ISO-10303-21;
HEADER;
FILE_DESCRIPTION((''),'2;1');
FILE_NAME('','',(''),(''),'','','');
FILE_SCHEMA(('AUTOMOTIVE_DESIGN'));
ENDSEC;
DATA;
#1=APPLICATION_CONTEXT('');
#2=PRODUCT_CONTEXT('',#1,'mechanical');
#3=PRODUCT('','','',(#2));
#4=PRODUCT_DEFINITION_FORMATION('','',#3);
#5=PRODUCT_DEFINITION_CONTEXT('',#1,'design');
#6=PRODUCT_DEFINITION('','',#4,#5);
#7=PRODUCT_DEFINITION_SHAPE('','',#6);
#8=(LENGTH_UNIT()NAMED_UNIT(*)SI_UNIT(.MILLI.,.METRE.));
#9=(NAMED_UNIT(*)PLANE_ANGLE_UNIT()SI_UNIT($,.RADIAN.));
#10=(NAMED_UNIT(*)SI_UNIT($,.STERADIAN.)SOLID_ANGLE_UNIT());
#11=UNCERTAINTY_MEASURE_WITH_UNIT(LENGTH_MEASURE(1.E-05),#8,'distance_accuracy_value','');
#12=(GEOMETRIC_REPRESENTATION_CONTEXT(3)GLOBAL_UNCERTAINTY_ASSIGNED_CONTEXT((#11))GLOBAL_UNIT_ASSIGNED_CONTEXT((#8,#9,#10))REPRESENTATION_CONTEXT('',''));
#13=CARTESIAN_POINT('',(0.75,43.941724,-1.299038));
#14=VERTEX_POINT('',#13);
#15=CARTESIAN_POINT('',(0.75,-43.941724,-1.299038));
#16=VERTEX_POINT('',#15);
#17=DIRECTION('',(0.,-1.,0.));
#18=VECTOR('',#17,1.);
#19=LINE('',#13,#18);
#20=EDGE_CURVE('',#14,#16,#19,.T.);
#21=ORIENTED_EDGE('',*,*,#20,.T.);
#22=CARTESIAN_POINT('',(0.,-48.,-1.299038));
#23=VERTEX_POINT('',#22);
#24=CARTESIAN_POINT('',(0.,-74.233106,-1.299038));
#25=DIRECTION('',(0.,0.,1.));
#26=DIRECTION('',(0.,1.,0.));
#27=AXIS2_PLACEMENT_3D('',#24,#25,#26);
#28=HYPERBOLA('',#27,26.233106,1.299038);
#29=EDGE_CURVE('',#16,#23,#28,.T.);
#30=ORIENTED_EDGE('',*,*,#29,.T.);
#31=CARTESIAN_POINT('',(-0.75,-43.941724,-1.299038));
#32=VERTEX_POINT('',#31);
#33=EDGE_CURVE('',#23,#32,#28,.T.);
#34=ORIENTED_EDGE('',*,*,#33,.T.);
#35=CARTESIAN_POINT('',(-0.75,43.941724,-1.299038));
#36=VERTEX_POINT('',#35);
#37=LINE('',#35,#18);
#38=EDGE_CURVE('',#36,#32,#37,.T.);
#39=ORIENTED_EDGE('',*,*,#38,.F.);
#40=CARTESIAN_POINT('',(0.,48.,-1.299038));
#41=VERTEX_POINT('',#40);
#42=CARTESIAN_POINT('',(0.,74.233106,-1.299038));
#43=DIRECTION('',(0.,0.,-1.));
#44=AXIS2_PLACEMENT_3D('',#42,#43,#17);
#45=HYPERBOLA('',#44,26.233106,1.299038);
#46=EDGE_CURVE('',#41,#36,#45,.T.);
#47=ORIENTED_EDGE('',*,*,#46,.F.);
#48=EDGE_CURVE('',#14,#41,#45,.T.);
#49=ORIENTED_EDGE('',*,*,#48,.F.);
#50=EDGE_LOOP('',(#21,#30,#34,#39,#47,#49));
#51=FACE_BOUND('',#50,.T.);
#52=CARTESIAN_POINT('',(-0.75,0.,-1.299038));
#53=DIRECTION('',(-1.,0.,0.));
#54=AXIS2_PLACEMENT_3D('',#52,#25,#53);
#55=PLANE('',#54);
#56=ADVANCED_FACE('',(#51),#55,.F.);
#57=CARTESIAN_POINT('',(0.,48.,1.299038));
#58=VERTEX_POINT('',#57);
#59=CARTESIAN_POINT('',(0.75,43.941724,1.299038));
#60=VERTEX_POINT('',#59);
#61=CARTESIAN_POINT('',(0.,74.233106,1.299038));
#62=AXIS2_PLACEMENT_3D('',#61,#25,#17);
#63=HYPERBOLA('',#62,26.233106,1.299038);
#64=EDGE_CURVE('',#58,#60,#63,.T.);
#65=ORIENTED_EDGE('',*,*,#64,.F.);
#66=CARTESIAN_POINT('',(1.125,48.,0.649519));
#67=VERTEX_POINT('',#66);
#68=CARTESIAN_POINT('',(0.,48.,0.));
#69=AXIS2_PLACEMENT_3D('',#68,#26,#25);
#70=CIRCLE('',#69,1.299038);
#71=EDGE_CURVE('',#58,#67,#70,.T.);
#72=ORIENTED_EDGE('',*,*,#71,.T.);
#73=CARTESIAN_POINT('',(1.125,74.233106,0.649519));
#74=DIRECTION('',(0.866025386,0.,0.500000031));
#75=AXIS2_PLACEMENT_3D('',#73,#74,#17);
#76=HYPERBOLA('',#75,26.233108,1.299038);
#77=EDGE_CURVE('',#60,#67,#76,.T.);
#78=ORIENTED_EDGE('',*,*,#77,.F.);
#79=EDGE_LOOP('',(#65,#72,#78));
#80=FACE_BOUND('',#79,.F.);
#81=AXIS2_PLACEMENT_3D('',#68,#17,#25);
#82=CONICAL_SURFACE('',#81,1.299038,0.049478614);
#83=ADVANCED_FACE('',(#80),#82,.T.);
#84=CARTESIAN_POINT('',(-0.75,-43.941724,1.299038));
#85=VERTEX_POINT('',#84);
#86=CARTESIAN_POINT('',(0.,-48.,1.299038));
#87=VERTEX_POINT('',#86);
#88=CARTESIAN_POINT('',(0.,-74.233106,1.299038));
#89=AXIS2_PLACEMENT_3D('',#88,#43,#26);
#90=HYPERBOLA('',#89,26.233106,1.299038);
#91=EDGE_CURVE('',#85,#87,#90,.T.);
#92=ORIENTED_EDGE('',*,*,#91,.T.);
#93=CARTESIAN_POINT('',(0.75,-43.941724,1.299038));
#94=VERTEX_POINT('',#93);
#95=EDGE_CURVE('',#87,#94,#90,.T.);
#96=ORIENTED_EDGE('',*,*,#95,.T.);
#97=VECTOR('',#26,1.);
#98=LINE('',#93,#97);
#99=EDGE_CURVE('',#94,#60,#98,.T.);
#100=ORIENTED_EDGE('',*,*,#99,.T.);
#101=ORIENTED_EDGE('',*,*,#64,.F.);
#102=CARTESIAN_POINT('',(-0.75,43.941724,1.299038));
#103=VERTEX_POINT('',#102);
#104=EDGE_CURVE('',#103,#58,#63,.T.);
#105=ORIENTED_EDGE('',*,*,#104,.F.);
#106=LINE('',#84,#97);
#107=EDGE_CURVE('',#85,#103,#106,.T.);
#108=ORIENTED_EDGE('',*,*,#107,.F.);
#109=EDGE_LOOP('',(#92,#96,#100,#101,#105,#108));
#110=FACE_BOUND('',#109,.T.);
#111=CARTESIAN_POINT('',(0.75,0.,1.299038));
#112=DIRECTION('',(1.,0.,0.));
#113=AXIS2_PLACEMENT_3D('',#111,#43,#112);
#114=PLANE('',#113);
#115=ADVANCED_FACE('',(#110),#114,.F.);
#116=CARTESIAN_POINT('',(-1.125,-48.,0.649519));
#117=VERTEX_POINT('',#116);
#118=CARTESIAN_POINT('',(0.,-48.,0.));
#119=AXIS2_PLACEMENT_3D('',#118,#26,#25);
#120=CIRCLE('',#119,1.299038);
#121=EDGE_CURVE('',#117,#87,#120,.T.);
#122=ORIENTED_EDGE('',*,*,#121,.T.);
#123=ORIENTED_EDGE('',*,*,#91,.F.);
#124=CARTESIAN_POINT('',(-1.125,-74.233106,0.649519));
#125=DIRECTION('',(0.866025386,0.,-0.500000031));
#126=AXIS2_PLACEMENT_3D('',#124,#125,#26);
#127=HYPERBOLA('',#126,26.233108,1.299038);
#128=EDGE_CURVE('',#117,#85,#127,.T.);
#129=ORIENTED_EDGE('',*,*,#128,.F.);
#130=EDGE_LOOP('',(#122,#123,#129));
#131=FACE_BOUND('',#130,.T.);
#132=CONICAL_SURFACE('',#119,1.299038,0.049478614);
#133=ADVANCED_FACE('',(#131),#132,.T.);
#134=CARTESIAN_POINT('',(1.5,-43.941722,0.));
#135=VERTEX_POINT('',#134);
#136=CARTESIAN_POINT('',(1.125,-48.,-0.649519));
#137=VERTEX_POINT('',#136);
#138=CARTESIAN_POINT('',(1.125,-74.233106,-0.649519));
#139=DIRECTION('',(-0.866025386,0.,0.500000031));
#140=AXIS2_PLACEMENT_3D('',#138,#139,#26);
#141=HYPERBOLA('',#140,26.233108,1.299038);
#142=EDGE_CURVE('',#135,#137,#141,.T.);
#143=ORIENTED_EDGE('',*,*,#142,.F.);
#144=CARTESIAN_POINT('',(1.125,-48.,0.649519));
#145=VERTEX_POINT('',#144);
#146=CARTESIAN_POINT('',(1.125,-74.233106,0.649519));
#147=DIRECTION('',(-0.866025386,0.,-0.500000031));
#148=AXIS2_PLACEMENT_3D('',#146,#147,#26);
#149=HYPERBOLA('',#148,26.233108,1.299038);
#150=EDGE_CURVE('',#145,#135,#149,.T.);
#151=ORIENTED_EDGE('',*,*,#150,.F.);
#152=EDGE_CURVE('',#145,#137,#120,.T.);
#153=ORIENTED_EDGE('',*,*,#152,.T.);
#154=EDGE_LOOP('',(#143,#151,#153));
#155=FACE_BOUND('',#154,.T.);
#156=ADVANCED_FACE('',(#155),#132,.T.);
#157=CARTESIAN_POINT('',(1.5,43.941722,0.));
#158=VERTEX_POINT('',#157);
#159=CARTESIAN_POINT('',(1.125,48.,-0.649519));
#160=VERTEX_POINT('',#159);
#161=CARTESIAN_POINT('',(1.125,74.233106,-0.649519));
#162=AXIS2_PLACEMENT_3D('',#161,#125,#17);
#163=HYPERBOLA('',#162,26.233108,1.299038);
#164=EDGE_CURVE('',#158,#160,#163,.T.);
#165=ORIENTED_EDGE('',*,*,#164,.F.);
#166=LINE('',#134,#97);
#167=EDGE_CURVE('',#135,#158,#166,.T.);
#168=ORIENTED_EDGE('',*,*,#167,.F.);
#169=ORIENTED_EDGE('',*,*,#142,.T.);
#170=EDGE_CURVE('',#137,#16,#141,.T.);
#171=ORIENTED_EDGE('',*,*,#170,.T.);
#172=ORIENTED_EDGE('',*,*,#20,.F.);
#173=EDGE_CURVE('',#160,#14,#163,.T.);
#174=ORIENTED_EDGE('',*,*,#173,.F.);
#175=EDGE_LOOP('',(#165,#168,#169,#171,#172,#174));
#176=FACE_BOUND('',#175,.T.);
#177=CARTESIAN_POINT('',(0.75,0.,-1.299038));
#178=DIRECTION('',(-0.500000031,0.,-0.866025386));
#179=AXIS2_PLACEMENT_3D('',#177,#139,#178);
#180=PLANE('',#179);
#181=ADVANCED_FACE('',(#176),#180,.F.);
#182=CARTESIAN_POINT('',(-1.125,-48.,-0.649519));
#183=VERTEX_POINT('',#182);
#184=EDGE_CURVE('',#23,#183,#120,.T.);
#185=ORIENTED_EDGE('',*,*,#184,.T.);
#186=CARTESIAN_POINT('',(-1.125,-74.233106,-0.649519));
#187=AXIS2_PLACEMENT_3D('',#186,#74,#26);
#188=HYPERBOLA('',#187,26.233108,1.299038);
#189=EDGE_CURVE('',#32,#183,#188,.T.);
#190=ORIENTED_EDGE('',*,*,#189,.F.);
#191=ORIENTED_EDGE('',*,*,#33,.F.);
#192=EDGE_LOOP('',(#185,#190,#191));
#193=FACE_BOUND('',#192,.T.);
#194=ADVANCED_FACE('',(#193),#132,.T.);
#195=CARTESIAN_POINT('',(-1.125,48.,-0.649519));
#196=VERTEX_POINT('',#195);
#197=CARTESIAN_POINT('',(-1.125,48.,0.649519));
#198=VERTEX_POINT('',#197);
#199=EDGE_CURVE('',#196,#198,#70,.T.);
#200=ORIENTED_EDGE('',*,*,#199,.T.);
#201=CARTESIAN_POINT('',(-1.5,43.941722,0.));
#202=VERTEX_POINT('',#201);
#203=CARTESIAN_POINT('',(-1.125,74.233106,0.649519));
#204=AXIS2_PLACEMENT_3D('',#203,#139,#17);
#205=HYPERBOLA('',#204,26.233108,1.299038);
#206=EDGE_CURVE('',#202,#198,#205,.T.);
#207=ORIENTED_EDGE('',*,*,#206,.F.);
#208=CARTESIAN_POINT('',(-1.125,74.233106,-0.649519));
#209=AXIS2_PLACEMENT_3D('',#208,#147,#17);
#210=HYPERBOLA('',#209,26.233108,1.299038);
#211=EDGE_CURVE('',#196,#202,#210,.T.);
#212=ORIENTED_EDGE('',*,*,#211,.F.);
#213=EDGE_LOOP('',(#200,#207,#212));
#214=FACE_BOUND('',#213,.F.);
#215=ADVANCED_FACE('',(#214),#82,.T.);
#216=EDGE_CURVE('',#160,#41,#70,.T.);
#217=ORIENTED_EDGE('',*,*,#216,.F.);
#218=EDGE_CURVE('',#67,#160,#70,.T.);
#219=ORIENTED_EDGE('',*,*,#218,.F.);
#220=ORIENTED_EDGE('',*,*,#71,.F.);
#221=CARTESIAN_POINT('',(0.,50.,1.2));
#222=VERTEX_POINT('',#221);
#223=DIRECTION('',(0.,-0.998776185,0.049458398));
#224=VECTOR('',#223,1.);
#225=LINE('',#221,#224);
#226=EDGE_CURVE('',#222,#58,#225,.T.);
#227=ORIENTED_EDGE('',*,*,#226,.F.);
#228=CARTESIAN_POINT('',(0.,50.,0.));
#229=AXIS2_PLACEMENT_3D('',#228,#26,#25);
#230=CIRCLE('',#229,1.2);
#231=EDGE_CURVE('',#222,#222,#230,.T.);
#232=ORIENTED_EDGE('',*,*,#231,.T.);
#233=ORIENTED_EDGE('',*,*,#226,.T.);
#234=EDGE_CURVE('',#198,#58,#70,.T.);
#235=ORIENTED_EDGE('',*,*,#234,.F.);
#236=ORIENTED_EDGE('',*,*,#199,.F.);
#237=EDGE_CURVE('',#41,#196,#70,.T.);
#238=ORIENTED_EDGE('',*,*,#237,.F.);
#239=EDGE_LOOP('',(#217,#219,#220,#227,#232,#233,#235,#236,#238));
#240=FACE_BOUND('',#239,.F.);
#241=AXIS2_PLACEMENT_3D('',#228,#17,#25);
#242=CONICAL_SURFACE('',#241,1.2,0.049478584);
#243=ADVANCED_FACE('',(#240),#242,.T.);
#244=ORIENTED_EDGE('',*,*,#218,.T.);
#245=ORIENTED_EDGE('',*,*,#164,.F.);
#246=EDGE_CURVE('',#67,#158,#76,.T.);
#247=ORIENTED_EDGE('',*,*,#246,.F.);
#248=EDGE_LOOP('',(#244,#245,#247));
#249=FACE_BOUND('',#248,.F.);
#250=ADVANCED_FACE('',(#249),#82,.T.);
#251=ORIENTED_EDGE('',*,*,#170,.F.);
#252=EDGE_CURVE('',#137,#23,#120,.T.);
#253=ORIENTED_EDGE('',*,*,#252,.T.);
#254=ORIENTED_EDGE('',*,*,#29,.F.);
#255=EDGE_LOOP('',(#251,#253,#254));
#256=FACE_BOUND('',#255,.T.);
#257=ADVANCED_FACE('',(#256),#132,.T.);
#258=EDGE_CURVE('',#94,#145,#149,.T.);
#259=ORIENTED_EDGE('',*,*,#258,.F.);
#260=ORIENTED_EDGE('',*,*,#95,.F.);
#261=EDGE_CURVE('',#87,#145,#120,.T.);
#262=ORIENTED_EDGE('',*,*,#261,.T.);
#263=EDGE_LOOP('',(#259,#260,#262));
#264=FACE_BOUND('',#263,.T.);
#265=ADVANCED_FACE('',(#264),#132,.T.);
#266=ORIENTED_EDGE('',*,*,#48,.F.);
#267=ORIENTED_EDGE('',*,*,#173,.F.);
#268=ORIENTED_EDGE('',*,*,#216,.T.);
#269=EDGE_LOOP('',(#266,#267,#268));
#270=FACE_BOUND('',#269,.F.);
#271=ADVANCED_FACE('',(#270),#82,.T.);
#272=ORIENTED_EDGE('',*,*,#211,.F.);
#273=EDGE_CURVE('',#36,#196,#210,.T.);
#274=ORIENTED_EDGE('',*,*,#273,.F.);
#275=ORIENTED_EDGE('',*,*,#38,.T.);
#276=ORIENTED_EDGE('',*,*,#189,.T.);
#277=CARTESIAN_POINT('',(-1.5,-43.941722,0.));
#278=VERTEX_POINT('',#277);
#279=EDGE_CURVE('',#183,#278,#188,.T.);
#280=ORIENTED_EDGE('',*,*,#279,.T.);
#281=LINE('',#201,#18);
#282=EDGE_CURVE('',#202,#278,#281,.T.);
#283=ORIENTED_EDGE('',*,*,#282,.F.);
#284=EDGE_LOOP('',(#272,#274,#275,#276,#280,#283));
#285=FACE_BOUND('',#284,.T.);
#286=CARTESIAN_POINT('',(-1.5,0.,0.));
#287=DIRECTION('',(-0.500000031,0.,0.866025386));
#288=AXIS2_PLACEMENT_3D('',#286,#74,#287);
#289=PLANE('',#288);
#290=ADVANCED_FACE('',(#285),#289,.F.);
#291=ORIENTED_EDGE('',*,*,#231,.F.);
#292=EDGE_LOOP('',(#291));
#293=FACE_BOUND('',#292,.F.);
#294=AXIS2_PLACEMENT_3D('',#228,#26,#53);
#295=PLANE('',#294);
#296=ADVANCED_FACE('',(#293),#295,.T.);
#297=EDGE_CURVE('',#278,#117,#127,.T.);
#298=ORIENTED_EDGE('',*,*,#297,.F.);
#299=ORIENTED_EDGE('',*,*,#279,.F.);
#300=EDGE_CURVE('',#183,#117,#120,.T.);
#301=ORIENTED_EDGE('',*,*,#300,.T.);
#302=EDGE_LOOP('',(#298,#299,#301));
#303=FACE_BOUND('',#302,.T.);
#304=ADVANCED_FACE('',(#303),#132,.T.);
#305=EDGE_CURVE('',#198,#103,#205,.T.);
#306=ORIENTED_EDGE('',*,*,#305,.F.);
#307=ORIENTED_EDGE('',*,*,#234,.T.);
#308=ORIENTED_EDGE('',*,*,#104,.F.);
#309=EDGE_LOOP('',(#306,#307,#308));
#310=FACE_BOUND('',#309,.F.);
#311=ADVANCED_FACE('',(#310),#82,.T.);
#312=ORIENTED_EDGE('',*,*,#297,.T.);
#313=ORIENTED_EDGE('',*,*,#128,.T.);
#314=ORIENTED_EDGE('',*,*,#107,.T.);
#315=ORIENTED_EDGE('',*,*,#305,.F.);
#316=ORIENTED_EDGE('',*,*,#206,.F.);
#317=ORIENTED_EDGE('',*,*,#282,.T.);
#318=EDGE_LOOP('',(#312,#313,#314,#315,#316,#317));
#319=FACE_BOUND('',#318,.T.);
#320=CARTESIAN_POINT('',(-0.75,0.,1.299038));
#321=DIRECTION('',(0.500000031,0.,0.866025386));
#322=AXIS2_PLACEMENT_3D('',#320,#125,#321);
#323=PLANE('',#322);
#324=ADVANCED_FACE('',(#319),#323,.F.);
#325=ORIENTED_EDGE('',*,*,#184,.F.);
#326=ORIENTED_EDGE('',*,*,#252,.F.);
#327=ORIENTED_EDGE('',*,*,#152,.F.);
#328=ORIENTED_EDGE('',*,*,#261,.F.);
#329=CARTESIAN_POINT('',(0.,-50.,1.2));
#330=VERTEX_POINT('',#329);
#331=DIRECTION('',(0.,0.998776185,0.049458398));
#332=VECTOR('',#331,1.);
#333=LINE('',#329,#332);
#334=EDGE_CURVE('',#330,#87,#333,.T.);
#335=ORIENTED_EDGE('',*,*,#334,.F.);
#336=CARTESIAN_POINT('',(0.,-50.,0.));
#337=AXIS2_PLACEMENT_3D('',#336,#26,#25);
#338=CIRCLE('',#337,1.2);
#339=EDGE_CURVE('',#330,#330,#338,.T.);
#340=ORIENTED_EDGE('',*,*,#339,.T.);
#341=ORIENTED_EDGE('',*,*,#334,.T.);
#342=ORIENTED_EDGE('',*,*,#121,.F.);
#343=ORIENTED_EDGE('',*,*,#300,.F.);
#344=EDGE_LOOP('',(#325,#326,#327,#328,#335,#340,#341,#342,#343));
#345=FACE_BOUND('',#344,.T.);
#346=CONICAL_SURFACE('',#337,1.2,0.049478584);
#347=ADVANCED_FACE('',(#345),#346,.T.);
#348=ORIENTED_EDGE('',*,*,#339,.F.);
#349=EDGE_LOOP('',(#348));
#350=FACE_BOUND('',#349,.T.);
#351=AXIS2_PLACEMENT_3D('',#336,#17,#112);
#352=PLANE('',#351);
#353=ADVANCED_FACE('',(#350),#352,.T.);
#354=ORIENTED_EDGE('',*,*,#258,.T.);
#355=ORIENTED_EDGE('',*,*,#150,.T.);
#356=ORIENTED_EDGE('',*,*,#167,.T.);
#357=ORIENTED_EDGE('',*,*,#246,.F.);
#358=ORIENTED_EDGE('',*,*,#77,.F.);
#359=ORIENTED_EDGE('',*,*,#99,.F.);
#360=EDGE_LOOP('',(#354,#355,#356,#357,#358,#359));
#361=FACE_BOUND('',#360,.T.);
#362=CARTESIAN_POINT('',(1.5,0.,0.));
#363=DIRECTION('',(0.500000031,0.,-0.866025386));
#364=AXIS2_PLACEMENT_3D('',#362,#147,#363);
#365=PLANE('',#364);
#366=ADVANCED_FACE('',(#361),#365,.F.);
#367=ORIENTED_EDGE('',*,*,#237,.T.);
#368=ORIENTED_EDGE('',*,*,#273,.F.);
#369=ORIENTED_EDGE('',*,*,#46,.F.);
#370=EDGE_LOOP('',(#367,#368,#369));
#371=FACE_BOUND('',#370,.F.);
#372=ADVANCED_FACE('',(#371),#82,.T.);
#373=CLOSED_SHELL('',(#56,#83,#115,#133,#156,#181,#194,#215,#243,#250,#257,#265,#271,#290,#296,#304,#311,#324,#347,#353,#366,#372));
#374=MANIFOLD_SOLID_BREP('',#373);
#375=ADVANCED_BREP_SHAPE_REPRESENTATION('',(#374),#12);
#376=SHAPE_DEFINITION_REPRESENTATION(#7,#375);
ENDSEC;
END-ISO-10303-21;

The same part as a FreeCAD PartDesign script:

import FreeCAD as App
import Part
import Sketcher
Q = App.Units.Quantity

doc = App.newDocument("Part")
body = doc.addObject("PartDesign::Body", "Body")

sketch1 = doc.addObject("Sketcher::SketchObject", "Sketch")
body.addObject(sketch1)
sketch1.AttachmentSupport = (doc.XZ_Plane, [""])
sketch1.MapMode = "FlatFace"
sketch1.addGeometry(Part.LineSegment(App.Vector(-0.8, 1.3, 0), App.Vector(-1.5, 0, 0)), False)
sketch1.addGeometry(Part.LineSegment(App.Vector(-1.5, 0, 0), App.Vector(-0.8, -1.3, 0)), False)
sketch1.addGeometry(Part.LineSegment(App.Vector(-0.8, -1.3, 0), App.Vector(0.8, -1.3, 0)), False)
sketch1.addGeometry(Part.LineSegment(App.Vector(0.8, -1.3, 0), App.Vector(1.5, 0, 0)), False)
sketch1.addGeometry(Part.LineSegment(App.Vector(1.5, 0, 0), App.Vector(0.8, 1.3, 0)), False)
sketch1.addGeometry(Part.LineSegment(App.Vector(0.8, 1.3, 0), App.Vector(-0.8, 1.3, 0)), False)
sketch1.addConstraint(Sketcher.Constraint("Coincident", 0, 2, 1, 1))
sketch1.addConstraint(Sketcher.Constraint("Coincident", 1, 2, 2, 1))
sketch1.addConstraint(Sketcher.Constraint("Coincident", 2, 2, 3, 1))
sketch1.addConstraint(Sketcher.Constraint("Coincident", 3, 2, 4, 1))
sketch1.addConstraint(Sketcher.Constraint("Coincident", 4, 2, 5, 1))
sketch1.addConstraint(Sketcher.Constraint("Coincident", 5, 2, 0, 1))
sketch1.addConstraint(Sketcher.Constraint("Horizontal", 2))
sketch1.addConstraint(Sketcher.Constraint("Horizontal", 5))
sketch1.addConstraint(Sketcher.Constraint("Symmetric", 0, 2, 3, 2, -1, 1))
sketch1.addConstraint(Sketcher.Constraint("Symmetric", 1, 2, 4, 2, -1, 1))
sketch1.addConstraint(Sketcher.Constraint("PointOnObject", 0, 2, -1))
sketch1.addConstraint(Sketcher.Constraint("Parallel", 0, 3))
sketch1.addConstraint(Sketcher.Constraint("Vertical", 2, 2, 4, 2))
sketch1.addConstraint(Sketcher.Constraint("Angle", 0, Q("-120.000002 deg")))
sketch1.addConstraint(Sketcher.Constraint("DistanceX", 2, 1, 2, 2, 1.5))
sketch1.addConstraint(Sketcher.Constraint("DistanceX", 0, 2, 3, 2, 3.0))
pad1 = doc.addObject("PartDesign::Pad", "Pad")
body.addObject(pad1)
pad1.Profile = sketch1
pad1.Length = 50

sketch2 = doc.addObject("Sketcher::SketchObject", "Sketch001")
body.addObject(sketch2)
sketch2.AttachmentSupport = (doc.YZ_Plane, [""])
sketch2.MapMode = "FlatFace"
sketch2.addGeometry(Part.LineSegment(App.Vector(-51, 1.1, 0), App.Vector(-50, 1.2, 0)), False)
sketch2.addGeometry(Part.LineSegment(App.Vector(-50, 1.2, 0), App.Vector(-48, 1.3, 0)), False)
sketch2.addGeometry(Part.LineSegment(App.Vector(-48, 1.3, 0), App.Vector(-36.1, 1.9, 0)), False)
sketch2.addGeometry(Part.LineSegment(App.Vector(-36.1, 1.9, 0), App.Vector(-51, 1.9, 0)), False)
sketch2.addGeometry(Part.LineSegment(App.Vector(-51, 1.9, 0), App.Vector(-51, 1.1, 0)), False)
sketch2.addConstraint(Sketcher.Constraint("Coincident", 0, 2, 1, 1))
sketch2.addConstraint(Sketcher.Constraint("Coincident", 1, 2, 2, 1))
sketch2.addConstraint(Sketcher.Constraint("Coincident", 2, 2, 3, 1))
sketch2.addConstraint(Sketcher.Constraint("Coincident", 3, 2, 4, 1))
sketch2.addConstraint(Sketcher.Constraint("Coincident", 4, 2, 0, 1))
sketch2.addConstraint(Sketcher.Constraint("Horizontal", 3))
sketch2.addConstraint(Sketcher.Constraint("Vertical", 4))
sketch2.addConstraint(Sketcher.Constraint("Parallel", 0, 1))
sketch2.addConstraint(Sketcher.Constraint("Parallel", 1, 2))
sketch2.addConstraint(Sketcher.Constraint("DistanceX", 0, 2, -1, 1, 50.0))
sketch2.addConstraint(Sketcher.Constraint("DistanceX", 1, 2, -1, 1, 48.0))
sketch2.addConstraint(Sketcher.Constraint("DistanceY", -1, 1, 0, 2, 1.2))
sketch2.addConstraint(Sketcher.Constraint("DistanceY", 4, 2, 4, 1, 0.740698))
sketch2.addConstraint(Sketcher.Constraint("Distance", 2, 11.930949))
sketch2.addConstraint(Sketcher.Constraint("DistanceX", 3, 2, 3, 1, 14.957854))
groove = doc.addObject("PartDesign::Groove", "Groove")
body.addObject(groove)
groove.Profile = sketch2
groove.ReferenceAxis = (sketch2, ["H_Axis"])
groove.Angle = 360
body2 = doc.addObject("PartDesign::Body", "Body001")
doc.recompute()

body2.BaseFeature = body
doc.recompute()

mirroring = doc.addObject("Part::Mirroring", "Mirroring")
mirroring.Source = body
mirroring.Base = App.Vector(0, 0, 0)
mirroring.Normal = App.Vector(0, -1, 0)
body3 = doc.addObject("PartDesign::Body", "Body002")
body3.BaseFeature = mirroring
boolean = doc.addObject("PartDesign::Boolean", "Boolean")
body2.addObject(boolean)
boolean.Type = "Fuse"
boolean.addObjects([body3])
doc.recompute()
mirroring.Visibility = False

doc.recompute()
